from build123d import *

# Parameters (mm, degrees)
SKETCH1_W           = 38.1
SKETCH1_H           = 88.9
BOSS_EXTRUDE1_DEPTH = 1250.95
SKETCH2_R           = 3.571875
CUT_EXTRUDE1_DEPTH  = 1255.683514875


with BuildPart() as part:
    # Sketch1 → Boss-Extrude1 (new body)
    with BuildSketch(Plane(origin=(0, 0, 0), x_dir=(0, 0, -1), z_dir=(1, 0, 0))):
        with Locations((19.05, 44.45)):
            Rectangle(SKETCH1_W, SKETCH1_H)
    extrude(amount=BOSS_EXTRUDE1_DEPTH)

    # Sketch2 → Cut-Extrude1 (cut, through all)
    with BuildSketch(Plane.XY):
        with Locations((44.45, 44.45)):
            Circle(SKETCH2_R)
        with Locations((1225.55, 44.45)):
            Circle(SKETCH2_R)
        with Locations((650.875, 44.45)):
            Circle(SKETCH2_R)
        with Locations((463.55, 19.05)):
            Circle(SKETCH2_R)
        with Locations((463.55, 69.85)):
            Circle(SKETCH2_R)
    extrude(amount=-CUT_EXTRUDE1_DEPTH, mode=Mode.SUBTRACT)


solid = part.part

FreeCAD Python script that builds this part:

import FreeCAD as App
import Part
import Sketcher

V = App.Vector
Q = App.Units.Quantity


def add_polygon(sketch, points):
    """Adds a closed chain of lines whose ends are joined by coincident constraints."""
    first, n = sketch.GeometryCount, len(points)
    for a, b in zip(points, points[1:] + points[:1]):
        sketch.addGeometry(Part.LineSegment(App.Vector(*a, 0), App.Vector(*b, 0)), False)
    for i in range(n):
        sketch.addConstraint(Sketcher.Constraint("Coincident", first + i, 2, first + (i + 1) % n, 1))

doc = App.newDocument("Part")
body = doc.addObject("PartDesign::Body", "Body")

# Sketch on YZ plane
sketch1 = body.newObject("Sketcher::SketchObject", "Sketch")
sketch1.AttachmentSupport = (doc.getObject("YZ_Plane"), [""])
sketch1.MapMode = "FlatFace"
add_polygon(sketch1, [(89, 0), (0, 0), (0, -38), (89, -38)])  # lines 0-3
sketch1.addConstraint(Sketcher.Constraint("Horizontal", 0))
sketch1.addConstraint(Sketcher.Constraint("Vertical", 1))
sketch1.addConstraint(Sketcher.Constraint("Horizontal", 2))
sketch1.addConstraint(Sketcher.Constraint("Vertical", 3))
sketch1.addConstraint(Sketcher.Constraint("Coincident", 0, 2, -1, 1))
sketch1.addConstraint(Sketcher.Constraint("DistanceX", 0, 2, 0, 1, Q("3.5 in")))
sketch1.addConstraint(Sketcher.Constraint("DistanceY", 1, 2, 1, 1, Q("1.5 in")))
pad1 = body.newObject("PartDesign::Pad", "Pad")
pad1.Profile = sketch1
pad1.Length = Q("49.25 in")

# Sketch on XY plane
sketch2 = body.newObject("Sketcher::SketchObject", "Sketch001")
sketch2.AttachmentSupport = (doc.getObject("XY_Plane"), [""])
sketch2.MapMode = "FlatFace"
sketch2.addGeometry(Part.Circle(V(44.5, 44.5, 0), V(0, 0, 1), 3.6), False)
sketch2.addGeometry(Part.Circle(V(1225.5, 44.5, 0), V(0, 0, 1), 3.6), False)
sketch2.addGeometry(Part.Circle(V(650.9, 44.5, 0), V(0, 0, 1), 3.6), False)
sketch2.addGeometry(Part.Circle(V(463.6, 19.1, 0), V(0, 0, 1), 3.6), False)
sketch2.addGeometry(Part.Circle(V(463.6, 69.8, 0), V(0, 0, 1), 3.6), False)
sketch2.addConstraint(Sketcher.Constraint("Equal", 0, 1))
sketch2.addConstraint(Sketcher.Constraint("Equal", 1, 2))
sketch2.addConstraint(Sketcher.Constraint("Equal", 2, 3))
sketch2.addConstraint(Sketcher.Constraint("Equal", 3, 4))
sketch2.addConstraint(Sketcher.Constraint("Horizontal", 0, 3, 1, 3))
sketch2.addConstraint(Sketcher.Constraint("Horizontal", 1, 3, 2, 3))
sketch2.addConstraint(Sketcher.Constraint("Vertical", 3, 3, 4, 3))
sketch2.addConstraint(Sketcher.Constraint("Diameter", 0, Q("0.28125 in")))
sketch2.addConstraint(Sketcher.Constraint("DistanceY", 3, 3, 2, 3, Q("1 in")))
sketch2.addConstraint(Sketcher.Constraint("DistanceX", 3, 3, 1, 3, Q("30 in")))
sketch2.addConstraint(Sketcher.Constraint("DistanceY", 3, 3, 4, 3, Q("2 in")))
sketch2.addConstraint(Sketcher.Constraint("DistanceX", 0, 3, 1, 3, Q("46.5 in")))
sketch2.addConstraint(Sketcher.Constraint("DistanceX", -1, 1, 0, 3, Q("1.75 in")))
sketch2.addConstraint(Sketcher.Constraint("DistanceY", -1, 1, 0, 3, Q("1.75 in")))
sketch2.addConstraint(Sketcher.Constraint("DistanceX", -1, 1, 2, 3, Q("25.625 in")))
pocket1 = body.newObject("PartDesign::Pocket", "Pocket")
pocket1.Profile = sketch2
pocket1.Type = "ThroughAll"

doc.recompute()
